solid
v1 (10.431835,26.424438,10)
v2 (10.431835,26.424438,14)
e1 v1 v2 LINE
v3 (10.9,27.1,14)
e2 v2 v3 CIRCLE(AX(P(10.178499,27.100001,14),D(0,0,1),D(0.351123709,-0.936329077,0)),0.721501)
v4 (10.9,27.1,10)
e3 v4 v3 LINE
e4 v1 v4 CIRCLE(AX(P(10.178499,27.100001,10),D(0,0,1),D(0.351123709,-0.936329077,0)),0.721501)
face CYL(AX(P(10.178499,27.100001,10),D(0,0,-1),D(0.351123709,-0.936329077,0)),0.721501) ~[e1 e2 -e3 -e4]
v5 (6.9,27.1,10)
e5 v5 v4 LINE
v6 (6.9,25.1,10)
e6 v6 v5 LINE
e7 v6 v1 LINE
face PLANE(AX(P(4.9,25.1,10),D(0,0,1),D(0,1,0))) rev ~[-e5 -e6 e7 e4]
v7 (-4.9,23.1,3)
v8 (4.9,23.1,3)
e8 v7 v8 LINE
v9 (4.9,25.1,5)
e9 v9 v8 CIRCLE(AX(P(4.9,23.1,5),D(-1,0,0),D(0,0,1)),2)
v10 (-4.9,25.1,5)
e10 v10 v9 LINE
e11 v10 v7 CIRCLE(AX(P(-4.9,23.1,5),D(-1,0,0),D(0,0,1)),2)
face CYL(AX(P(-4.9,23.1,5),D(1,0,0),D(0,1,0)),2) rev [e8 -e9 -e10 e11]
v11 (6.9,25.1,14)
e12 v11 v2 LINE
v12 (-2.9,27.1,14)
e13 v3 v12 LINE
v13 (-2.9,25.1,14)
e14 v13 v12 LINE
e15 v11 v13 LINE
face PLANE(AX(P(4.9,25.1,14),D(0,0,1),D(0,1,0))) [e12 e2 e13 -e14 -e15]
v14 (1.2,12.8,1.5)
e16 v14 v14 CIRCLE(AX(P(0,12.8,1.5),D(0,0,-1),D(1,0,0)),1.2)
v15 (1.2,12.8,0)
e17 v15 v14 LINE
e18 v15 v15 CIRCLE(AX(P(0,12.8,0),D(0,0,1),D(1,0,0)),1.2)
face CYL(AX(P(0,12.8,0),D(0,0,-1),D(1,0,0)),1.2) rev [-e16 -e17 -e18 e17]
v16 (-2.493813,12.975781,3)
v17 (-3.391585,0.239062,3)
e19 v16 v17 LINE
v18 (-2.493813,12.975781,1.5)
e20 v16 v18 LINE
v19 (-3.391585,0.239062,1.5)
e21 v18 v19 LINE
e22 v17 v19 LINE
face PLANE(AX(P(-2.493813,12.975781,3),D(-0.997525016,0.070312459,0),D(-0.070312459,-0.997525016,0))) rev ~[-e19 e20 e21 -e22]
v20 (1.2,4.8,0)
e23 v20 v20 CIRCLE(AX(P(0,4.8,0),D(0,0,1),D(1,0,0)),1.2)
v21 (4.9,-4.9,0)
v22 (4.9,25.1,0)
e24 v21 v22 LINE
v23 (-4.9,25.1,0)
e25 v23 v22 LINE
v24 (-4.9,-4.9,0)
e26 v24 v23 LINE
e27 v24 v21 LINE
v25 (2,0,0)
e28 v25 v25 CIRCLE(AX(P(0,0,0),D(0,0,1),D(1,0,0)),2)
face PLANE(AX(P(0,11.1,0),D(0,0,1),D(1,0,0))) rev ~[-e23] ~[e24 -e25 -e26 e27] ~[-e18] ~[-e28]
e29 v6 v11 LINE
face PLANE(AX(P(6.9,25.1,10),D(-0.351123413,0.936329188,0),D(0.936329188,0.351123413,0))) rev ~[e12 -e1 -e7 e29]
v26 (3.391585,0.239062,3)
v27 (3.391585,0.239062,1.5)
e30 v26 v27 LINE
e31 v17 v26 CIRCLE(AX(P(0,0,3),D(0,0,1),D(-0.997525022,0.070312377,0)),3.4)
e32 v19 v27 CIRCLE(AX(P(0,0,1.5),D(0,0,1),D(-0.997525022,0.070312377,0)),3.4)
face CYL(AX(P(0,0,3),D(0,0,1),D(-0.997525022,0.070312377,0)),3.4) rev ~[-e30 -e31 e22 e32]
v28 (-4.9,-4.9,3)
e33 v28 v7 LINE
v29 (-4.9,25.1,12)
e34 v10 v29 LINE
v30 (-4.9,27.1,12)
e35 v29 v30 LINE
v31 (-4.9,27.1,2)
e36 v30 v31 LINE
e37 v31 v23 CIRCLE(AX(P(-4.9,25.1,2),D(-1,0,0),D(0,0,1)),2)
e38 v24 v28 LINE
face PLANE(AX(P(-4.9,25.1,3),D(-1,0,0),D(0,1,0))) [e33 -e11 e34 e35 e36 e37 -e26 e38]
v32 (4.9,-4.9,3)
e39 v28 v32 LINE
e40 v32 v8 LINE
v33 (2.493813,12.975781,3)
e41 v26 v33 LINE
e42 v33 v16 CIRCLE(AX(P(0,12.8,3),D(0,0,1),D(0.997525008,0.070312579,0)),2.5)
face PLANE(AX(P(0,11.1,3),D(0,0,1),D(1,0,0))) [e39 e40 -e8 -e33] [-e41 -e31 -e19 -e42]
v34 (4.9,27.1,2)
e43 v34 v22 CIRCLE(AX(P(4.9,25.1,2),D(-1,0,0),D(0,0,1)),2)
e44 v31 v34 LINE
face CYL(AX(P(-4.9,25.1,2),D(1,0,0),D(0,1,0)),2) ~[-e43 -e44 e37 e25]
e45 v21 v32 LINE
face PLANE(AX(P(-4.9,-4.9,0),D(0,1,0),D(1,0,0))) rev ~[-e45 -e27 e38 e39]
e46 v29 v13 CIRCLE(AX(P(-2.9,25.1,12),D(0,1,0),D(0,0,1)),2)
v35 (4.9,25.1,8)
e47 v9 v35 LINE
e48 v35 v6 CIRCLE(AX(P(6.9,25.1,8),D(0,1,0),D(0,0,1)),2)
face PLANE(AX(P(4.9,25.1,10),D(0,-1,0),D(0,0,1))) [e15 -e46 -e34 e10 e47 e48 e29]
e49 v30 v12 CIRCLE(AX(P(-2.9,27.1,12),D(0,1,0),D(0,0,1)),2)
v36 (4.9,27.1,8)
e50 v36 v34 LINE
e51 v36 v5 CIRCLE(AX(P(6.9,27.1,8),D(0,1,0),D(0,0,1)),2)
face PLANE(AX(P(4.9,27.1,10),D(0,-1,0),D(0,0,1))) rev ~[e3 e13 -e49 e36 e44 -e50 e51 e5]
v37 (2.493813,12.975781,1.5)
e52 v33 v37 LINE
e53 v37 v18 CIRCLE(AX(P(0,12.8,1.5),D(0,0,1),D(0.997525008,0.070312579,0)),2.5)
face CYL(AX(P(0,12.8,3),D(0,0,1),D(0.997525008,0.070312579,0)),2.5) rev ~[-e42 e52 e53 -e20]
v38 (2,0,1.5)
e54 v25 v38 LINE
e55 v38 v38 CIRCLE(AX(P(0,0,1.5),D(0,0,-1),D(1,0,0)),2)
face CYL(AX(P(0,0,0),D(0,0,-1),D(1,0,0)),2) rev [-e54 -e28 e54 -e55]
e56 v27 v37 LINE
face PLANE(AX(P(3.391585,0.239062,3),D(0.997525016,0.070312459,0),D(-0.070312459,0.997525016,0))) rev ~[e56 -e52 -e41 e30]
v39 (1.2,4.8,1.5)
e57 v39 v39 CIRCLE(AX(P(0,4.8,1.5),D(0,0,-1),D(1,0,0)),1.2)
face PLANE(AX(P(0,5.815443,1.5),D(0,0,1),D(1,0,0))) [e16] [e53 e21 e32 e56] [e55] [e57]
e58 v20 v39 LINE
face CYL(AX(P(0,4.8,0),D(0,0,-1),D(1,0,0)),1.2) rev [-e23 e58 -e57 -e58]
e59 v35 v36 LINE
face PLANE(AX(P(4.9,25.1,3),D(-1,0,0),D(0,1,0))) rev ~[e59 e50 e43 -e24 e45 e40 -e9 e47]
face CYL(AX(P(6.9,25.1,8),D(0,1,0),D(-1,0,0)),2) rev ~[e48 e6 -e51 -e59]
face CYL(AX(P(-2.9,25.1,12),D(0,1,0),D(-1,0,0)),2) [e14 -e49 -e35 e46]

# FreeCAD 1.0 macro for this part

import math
import FreeCAD as App
import Part
import Sketcher
Q = App.Units.Quantity


def edges_at(feature, points):
    """Names of the edges that pass closest to the given points."""
    edges = feature.Shape.Edges
    near = lambda p: min(range(len(edges)), key=lambda i: edges[i].distToShape(Part.Vertex(*p))[0])
    return sorted({f"Edge{near(p) + 1}" for p in points})


def add_polygon(sketch, points):
    """Adds a closed chain of lines whose ends are joined by coincident constraints."""
    first, n = sketch.GeometryCount, len(points)
    for a, b in zip(points, points[1:] + points[:1]):
        sketch.addGeometry(Part.LineSegment(App.Vector(*a, 0), App.Vector(*b, 0)), False)
    for i in range(n):
        sketch.addConstraint(Sketcher.Constraint("Coincident", first + i, 2, first + (i + 1) % n, 1))

doc = App.newDocument("Part")
body = doc.addObject("PartDesign::Body", "Body")

# Sketch on XY plane
sketch1 = body.newObject("Sketcher::SketchObject", "Sketch")
sketch1.AttachmentSupport = (doc.getObject("XY_Plane"), [""])
sketch1.MapMode = "FlatFace"
add_polygon(sketch1, [(-4.9, 27.1), (-4.9, -4.9), (4.9, -4.9), (4.9, 27.1)])  # lines 0-3
sketch1.addGeometry(Part.Circle(App.Vector(0, 0, 0), App.Vector(0, 0, 1), 2), False)  # 4
sketch1.addGeometry(Part.Circle(App.Vector(0, 4.8, 0), App.Vector(0, 0, 1), 1.2), False)  # 5
sketch1.addGeometry(Part.Circle(App.Vector(0, 12.8, 0), App.Vector(0, 0, 1), 1.2), False)  # 6
sketch1.addConstraint(Sketcher.Constraint("Vertical", 0))
sketch1.addConstraint(Sketcher.Constraint("Horizontal", 1))
sketch1.addConstraint(Sketcher.Constraint("Vertical", 2))
sketch1.addConstraint(Sketcher.Constraint("Horizontal", 3))
sketch1.addConstraint(Sketcher.Constraint("Coincident", 4, 3, -1, 1))
sketch1.addConstraint(Sketcher.Constraint("Equal", 5, 6))
sketch1.addConstraint(Sketcher.Constraint("PointOnObject", 5, 3, -2))
sketch1.addConstraint(Sketcher.Constraint("PointOnObject", 6, 3, -2))
sketch1.addConstraint(Sketcher.Constraint("Diameter", 4, Q("4 mm")))
sketch1.addConstraint(Sketcher.Constraint("Diameter", 5, Q("2.4 mm")))
sketch1.addConstraint(Sketcher.Constraint("DistanceY", 0, 2, 0, 1, Q("32 mm")))
sketch1.addConstraint(Sketcher.Constraint("DistanceX", 1, 1, 1, 2, Q("9.8 mm")))
sketch1.addConstraint(Sketcher.Constraint("DistanceY", 5, 3, 6, 3, Q("8 mm")))
sketch1.addConstraint(Sketcher.Constraint("DistanceY", -1, 1, 5, 3, Q("4.8 mm")))
sketch1.addConstraint(Sketcher.Constraint("DistanceX", 0, 2, -1, 1, Q("4.9 mm")))
sketch1.addConstraint(Sketcher.Constraint("DistanceY", 0, 2, -1, 1, Q("4.9 mm")))
pad1 = body.newObject("PartDesign::Pad", "Pad")
pad1.Profile = sketch1
pad1.Length = 3

# Sketch on XY plane
sketch2 = body.newObject("Sketcher::SketchObject", "Sketch001")
sketch2.AttachmentSupport = (doc.getObject("XY_Plane"), [""])
sketch2.MapMode = "FlatFace"
sketch2.AttachmentOffset = App.Placement(App.Vector(0, 0, 3), App.Rotation())
sketch2.addGeometry(Part.LineSegment(App.Vector(-2.5, 13, 0), App.Vector(-3.4, 0.2, 0)), False)
sketch2.addGeometry(Part.ArcOfCircle(Part.Circle(App.Vector(0, 0, 0), App.Vector(0, 0, 1), 3.4), math.radians(176), math.radians(364)), False)
sketch2.addGeometry(Part.LineSegment(App.Vector(3.4, 0.2, 0), App.Vector(2.5, 13, 0)), False)
sketch2.addGeometry(Part.ArcOfCircle(Part.Circle(App.Vector(0, 12.8, 0), App.Vector(0, 0, 1), 2.5), math.radians(4), math.radians(176)), False)
sketch2.addConstraint(Sketcher.Constraint("Tangent", 0, 2, 1, 1))
sketch2.addConstraint(Sketcher.Constraint("Tangent", 1, 2, 2, 1))
sketch2.addConstraint(Sketcher.Constraint("Tangent", 2, 2, 3, 1))
sketch2.addConstraint(Sketcher.Constraint("Tangent", 3, 2, 0, 1))
sketch2.addConstraint(Sketcher.Constraint("Coincident", 1, 3, -1, 1))
sketch2.addConstraint(Sketcher.Constraint("PointOnObject", 3, 3, -2))
sketch2.addConstraint(Sketcher.Constraint("Radius", 1, Q("3.4 mm")))
sketch2.addConstraint(Sketcher.Constraint("Radius", 3, Q("2.5 mm")))
sketch2.addConstraint(Sketcher.Constraint("DistanceY", -1, 1, 3, 3, Q("12.8 mm")))
pocket1 = body.newObject("PartDesign::Pocket", "Pocket")
pocket1.Profile = sketch2
pocket1.Length = 1.5

# Sketch on XY plane
sketch3 = body.newObject("Sketcher::SketchObject", "Sketch002")
sketch3.AttachmentSupport = (doc.getObject("XY_Plane"), [""])
sketch3.MapMode = "FlatFace"
sketch3.AttachmentOffset = App.Placement(App.Vector(0, 0, 3), App.Rotation())
add_polygon(sketch3, [(-4.9, 27.1), (-4.9, 25.1), (4.9, 25.1), (4.9, 27.1)])  # lines 0-3
sketch3.addConstraint(Sketcher.Constraint("Vertical", 0))
sketch3.addConstraint(Sketcher.Constraint("Horizontal", 1))
sketch3.addConstraint(Sketcher.Constraint("Vertical", 2))
sketch3.addConstraint(Sketcher.Constraint("Horizontal", 3))
sketch3.addConstraint(Sketcher.Constraint("DistanceY", 0, 2, 0, 1, Q("2 mm")))
sketch3.addConstraint(Sketcher.Constraint("DistanceX", 1, 1, 1, 2, Q("9.8 mm")))
sketch3.addConstraint(Sketcher.Constraint("DistanceX", 0, 2, -1, 1, Q("4.9 mm")))
sketch3.addConstraint(Sketcher.Constraint("DistanceY", -1, 1, 0, 2, Q("25.1 mm")))
pad2 = body.newObject("PartDesign::Pad", "Pad001")
pad2.Profile = sketch3
pad2.Length = 11

# Sketch on YZ plane
sketch4 = body.newObject("Sketcher::SketchObject", "Sketch003")
sketch4.AttachmentSupport = (doc.getObject("YZ_Plane"), [""])
sketch4.MapMode = "FlatFace"
sketch4.AttachmentOffset = App.Placement(App.Vector(0, 0, 4.9), App.Rotation())
add_polygon(sketch4, [(25.1, 14), (25.1, 10), (27.1, 10), (27.1, 14)])  # lines 0-3
sketch4.addConstraint(Sketcher.Constraint("Vertical", 0))
sketch4.addConstraint(Sketcher.Constraint("Horizontal", 1))
sketch4.addConstraint(Sketcher.Constraint("Vertical", 2))
sketch4.addConstraint(Sketcher.Constraint("Horizontal", 3))
sketch4.addConstraint(Sketcher.Constraint("DistanceX", 1, 1, 1, 2, Q("2 mm")))
sketch4.addConstraint(Sketcher.Constraint("DistanceY", 0, 2, 0, 1, Q("4 mm")))
sketch4.addConstraint(Sketcher.Constraint("DistanceY", -1, 1, 0, 2, Q("10 mm")))
sketch4.addConstraint(Sketcher.Constraint("DistanceX", -1, 1, 0, 2, Q("25.1 mm")))
pad3 = body.newObject("PartDesign::Pad", "Pad002")
pad3.Profile = sketch4
pad3.Length = 6
doc.recompute()

fillet = body.newObject("PartDesign::Fillet", "Fillet")
fillet.Base = (pad3, edges_at(pad3, [
    (4.9, 26.1, 10),
    (-4.9, 26.1, 14),
    (0, 25.1, 3),
    (0, 27.1, 0),
]))
fillet.Radius = 2

# Sketch on XY plane
sketch5 = body.newObject("Sketcher::SketchObject", "Sketch004")
sketch5.AttachmentSupport = (doc.getObject("XY_Plane"), [""])
sketch5.MapMode = "FlatFace"
sketch5.AttachmentOffset = App.Placement(App.Vector(0, 0, 10), App.Rotation())
sketch5.addGeometry(Part.LineSegment(App.Vector(10.9, 25.1, 0), App.Vector(6.9, 25.1, 0)), False)
sketch5.addGeometry(Part.LineSegment(App.Vector(6.9, 25.1, 0), App.Vector(10.4, 26.4, 0)), False)
sketch5.addGeometry(Part.ArcOfCircle(Part.Circle(App.Vector(10.2, 27.1, 0), App.Vector(0, 0, 1), 0.7), math.radians(-69), math.radians(0)), False)
sketch5.addGeometry(Part.LineSegment(App.Vector(10.9, 27.1, 0), App.Vector(10.9, 25.1, 0)), False)
sketch5.addConstraint(Sketcher.Constraint("Coincident", 0, 2, 1, 1))
sketch5.addConstraint(Sketcher.Constraint("Tangent", 1, 2, 2, 1))
sketch5.addConstraint(Sketcher.Constraint("Tangent", 2, 2, 3, 1))
sketch5.addConstraint(Sketcher.Constraint("Coincident", 3, 2, 0, 1))
sketch5.addConstraint(Sketcher.Constraint("Horizontal", 0))
sketch5.addConstraint(Sketcher.Constraint("Vertical", 3))
sketch5.addConstraint(Sketcher.Constraint("DistanceX", 0, 2, 0, 1, Q("4 mm")))
sketch5.addConstraint(Sketcher.Constraint("DistanceY", 3, 2, 3, 1, Q("2 mm")))
sketch5.addConstraint(Sketcher.Constraint("DistanceY", -1, 1, 2, 3, Q("27.100001 mm")))
sketch5.addConstraint(Sketcher.Constraint("DistanceX", -1, 1, 0, 2, Q("6.9 mm")))
sketch5.addConstraint(Sketcher.Constraint("Radius", 2, Q("0.721501 mm")))
pocket2 = body.newObject("PartDesign::Pocket", "Pocket001")
pocket2.Profile = sketch5
pocket2.Type = "ThroughAll"
pocket2.Reversed = True

doc.recompute()
